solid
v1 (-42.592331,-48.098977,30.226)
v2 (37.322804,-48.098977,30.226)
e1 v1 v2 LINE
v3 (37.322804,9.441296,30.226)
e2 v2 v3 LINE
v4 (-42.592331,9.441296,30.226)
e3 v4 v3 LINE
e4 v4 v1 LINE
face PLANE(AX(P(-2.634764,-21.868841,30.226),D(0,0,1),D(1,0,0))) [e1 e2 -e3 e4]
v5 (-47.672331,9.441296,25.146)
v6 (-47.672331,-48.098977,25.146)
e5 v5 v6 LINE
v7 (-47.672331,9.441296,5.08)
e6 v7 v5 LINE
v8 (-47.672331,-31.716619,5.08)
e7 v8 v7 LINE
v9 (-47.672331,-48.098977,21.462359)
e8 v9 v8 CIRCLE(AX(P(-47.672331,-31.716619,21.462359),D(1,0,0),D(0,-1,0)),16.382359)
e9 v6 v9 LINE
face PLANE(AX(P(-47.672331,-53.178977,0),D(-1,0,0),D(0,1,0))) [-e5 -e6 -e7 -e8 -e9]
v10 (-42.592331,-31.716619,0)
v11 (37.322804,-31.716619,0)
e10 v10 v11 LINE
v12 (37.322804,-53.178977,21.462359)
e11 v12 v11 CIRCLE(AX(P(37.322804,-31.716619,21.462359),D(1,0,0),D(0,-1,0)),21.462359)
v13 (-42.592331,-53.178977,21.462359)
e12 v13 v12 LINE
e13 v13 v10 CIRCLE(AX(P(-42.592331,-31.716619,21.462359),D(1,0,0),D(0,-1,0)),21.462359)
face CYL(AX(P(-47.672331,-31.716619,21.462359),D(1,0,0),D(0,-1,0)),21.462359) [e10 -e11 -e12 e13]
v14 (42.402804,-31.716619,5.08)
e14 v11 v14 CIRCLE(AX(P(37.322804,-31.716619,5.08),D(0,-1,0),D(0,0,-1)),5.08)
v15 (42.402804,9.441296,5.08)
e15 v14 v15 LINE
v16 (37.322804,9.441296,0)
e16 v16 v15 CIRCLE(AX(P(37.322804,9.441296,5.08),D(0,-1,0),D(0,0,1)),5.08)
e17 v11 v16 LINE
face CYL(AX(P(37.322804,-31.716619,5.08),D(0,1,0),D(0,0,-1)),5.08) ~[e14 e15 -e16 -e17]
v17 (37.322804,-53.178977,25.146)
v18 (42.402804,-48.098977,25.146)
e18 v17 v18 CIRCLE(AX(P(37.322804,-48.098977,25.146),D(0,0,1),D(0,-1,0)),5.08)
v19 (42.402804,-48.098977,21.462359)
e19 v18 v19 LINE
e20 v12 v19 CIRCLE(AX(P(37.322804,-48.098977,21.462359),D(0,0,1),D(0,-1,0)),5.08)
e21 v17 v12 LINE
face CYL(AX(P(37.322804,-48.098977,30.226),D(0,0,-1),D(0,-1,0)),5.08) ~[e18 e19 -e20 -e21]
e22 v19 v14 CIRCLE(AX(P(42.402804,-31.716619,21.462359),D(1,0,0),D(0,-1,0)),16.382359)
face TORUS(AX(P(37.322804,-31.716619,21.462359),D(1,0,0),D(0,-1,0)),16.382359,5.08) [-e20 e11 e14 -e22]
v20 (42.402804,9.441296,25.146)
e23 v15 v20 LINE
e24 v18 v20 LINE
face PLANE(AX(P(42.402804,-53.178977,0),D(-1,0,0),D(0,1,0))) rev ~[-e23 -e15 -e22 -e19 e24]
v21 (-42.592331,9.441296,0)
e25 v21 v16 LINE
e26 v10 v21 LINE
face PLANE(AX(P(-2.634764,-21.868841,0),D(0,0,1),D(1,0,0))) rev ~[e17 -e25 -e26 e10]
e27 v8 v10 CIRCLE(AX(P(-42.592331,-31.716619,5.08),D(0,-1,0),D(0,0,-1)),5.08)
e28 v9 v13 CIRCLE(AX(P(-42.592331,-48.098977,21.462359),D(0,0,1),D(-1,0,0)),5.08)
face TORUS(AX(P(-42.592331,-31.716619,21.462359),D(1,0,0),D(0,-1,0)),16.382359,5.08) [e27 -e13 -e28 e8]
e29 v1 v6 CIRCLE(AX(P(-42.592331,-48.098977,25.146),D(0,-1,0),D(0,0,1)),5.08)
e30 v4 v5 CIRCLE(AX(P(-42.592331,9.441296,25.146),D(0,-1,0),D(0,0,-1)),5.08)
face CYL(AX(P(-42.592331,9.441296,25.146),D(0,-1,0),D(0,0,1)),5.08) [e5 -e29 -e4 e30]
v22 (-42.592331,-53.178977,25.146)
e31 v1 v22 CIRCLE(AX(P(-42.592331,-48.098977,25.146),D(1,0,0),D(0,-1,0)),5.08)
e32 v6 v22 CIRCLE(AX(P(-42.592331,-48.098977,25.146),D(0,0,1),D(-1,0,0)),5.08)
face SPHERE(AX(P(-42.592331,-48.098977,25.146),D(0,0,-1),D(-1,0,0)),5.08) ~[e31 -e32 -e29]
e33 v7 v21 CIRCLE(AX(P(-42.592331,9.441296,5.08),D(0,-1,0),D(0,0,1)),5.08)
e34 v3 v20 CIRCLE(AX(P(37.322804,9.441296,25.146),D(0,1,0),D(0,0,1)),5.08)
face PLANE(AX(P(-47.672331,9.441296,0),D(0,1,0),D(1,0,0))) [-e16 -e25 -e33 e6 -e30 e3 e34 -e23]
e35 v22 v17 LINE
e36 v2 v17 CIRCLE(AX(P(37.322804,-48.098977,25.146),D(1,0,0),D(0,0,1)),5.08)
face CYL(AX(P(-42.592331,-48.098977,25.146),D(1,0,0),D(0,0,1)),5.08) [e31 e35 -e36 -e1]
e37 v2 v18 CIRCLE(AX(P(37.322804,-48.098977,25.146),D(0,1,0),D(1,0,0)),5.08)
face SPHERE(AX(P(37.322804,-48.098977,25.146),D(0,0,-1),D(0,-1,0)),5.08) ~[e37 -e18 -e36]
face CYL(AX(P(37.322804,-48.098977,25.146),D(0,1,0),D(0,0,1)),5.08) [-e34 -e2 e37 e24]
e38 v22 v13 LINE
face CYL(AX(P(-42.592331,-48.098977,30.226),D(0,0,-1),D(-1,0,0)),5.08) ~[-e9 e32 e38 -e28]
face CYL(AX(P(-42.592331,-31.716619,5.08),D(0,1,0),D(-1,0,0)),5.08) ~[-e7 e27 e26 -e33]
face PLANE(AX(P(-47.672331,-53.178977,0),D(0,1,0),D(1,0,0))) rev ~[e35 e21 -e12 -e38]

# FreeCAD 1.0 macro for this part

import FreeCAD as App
import Part
import Sketcher

V = App.Vector
Q = App.Units.Quantity


def edges_at(feature, points):
    """Names of the edges that pass closest to the given points."""
    edges = feature.Shape.Edges
    near = lambda p: min(range(len(edges)), key=lambda i: edges[i].distToShape(Part.Vertex(*p))[0])
    return sorted({f"Edge{near(p) + 1}" for p in points})


def add_polygon(sketch, points):
    """Adds a closed chain of lines whose ends are joined by coincident constraints."""
    first, n = sketch.GeometryCount, len(points)
    for a, b in zip(points, points[1:] + points[:1]):
        sketch.addGeometry(Part.LineSegment(App.Vector(*a, 0), App.Vector(*b, 0)), False)
    for i in range(n):
        sketch.addConstraint(Sketcher.Constraint("Coincident", first + i, 2, first + (i + 1) % n, 1))

doc = App.newDocument("Part")
body = doc.addObject("PartDesign::Body", "Body")

sketch1 = body.newObject("Sketcher::SketchObject", "Sketch")
sketch1.AttachmentSupport = (doc.getObject("XY_Plane"), [""])
sketch1.MapMode = "FlatFace"
add_polygon(sketch1, [(-48, 9), (-48, -53), (42, -53), (42, 9)])
sketch1.addConstraint([
    Sketcher.Constraint("Vertical", 0),
    Sketcher.Constraint("Horizontal", 1),
    Sketcher.Constraint("Vertical", 2),
    Sketcher.Constraint("Horizontal", 3),
    Sketcher.Constraint("DistanceX", 1, 1, 1, 2, 90.075135),
    Sketcher.Constraint("DistanceY", 0, 2, 0, 1, 62.620273),
    Sketcher.Constraint("DistanceX", 0, 2, -1, 1, 47.672331),
    Sketcher.Constraint("DistanceY", 0, 2, -1, 1, 53.178977),
])
pad1 = body.newObject("PartDesign::Pad", "Pad")
pad1.Profile = sketch1
pad1.Length = Q("1.19 in")
doc.recompute()

fillet = body.newObject("PartDesign::Fillet", "Fillet")
fillet.Base = (pad1, edges_at(pad1, [(-2.635, -53.179, 0)]))
fillet.Radius = 21.462359
doc.recompute()

fillet2 = body.newObject("PartDesign::Fillet", "Fillet001")
fillet2.Base = (fillet, edges_at(fillet, [(42.403, -11.138, 0), (-47.672, -11.138, 0)]))
fillet2.Radius = Q("0.2 in")
doc.recompute()

fillet3 = body.newObject("PartDesign::Fillet", "Fillet002")
fillet3.Base = (fillet2, edges_at(fillet2, [
    (-2.635, -53.179, 21.462),
    (-42.592, -53.179, 25.844),
    (37.323, -53.179, 25.844),
    (-2.635, -53.179, 30.226),
    (-42.592, -46.893, 6.286),
    (37.323, -46.893, 6.286),
    (-2.635, -31.717, 0),
]))
fillet3.Radius = Q("0.2 in")

doc.recompute()
